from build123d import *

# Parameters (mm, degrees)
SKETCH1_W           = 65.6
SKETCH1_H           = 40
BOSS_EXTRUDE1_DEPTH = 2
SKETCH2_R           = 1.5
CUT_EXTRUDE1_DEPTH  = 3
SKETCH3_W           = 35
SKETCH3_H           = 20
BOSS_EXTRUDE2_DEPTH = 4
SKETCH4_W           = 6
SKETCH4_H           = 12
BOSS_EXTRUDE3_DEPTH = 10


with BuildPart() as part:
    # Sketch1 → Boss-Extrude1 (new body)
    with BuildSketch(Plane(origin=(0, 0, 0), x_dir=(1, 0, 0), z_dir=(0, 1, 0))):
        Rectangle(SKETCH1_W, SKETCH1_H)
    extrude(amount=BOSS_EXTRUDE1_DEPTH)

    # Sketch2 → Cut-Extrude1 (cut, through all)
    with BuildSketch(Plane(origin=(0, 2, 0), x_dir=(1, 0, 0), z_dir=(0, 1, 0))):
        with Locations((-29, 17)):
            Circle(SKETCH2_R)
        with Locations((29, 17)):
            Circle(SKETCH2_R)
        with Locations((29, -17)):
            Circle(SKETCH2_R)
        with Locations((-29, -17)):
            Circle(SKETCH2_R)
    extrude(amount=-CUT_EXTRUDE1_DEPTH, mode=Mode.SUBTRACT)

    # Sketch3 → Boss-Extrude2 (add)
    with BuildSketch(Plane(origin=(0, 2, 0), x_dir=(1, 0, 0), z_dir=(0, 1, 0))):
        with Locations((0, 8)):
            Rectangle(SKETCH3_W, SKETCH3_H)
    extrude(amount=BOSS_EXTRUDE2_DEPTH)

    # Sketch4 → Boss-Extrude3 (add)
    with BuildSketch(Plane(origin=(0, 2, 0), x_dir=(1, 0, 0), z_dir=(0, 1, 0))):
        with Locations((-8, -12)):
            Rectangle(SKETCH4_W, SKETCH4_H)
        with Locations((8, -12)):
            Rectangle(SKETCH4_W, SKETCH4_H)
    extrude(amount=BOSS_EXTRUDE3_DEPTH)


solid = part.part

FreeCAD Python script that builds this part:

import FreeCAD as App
import Part
import Sketcher

V = App.Vector
Q = App.Units.Quantity


def add_polygon(sketch, points):
    """Adds a closed chain of lines whose ends are joined by coincident constraints."""
    first, n = sketch.GeometryCount, len(points)
    for a, b in zip(points, points[1:] + points[:1]):
        sketch.addGeometry(Part.LineSegment(App.Vector(*a, 0), App.Vector(*b, 0)), False)
    for i in range(n):
        sketch.addConstraint(Sketcher.Constraint("Coincident", first + i, 2, first + (i + 1) % n, 1))

doc = App.newDocument("Part")
params = doc.addObject("Spreadsheet::Sheet", "Params")
for row, (alias, value) in enumerate([
    ("sketch1_height", "40 mm"),
    ("sketch1_width", "65.6 mm"),
    ("pad1_length", "2 mm"),
    ("sketch2_diameter", "3 mm"),
    ("sketch3_width", "35 mm"),
    ("sketch3_height", "20 mm"),
    ("pad2_length", "4 mm"),
    ("sketch4_width", "6 mm"),
    ("sketch4_height", "12 mm"),
    ("pad3_length", "10 mm"),
], start=1):
    params.set(f"A{row}", alias)
    params.set(f"B{row}", "=" + value)
    params.setAlias(f"B{row}", alias)

body = doc.addObject("PartDesign::Body", "Body")

# Sketch on XZ plane
sketch1 = body.newObject("Sketcher::SketchObject", "Sketch")
sketch1.AttachmentSupport = (doc.getObject("XZ_Plane"), [""])
sketch1.MapMode = "FlatFace"
add_polygon(sketch1, [(-33, -20), (-33, 20), (33, 20), (33, -20)])  # lines 0-3
sketch1.addConstraint([
    Sketcher.Constraint("Vertical", 0),
    Sketcher.Constraint("Horizontal", 1),
    Sketcher.Constraint("Vertical", 2),
    Sketcher.Constraint("Horizontal", 3),
    Sketcher.Constraint("Symmetric", 0, 2, 2, 2, -1, 1),
    Sketcher.Constraint("DistanceY", 0, 1, 0, 2, Q("40 mm")),
    Sketcher.Constraint("DistanceX", 1, 1, 1, 2, Q("65.6 mm")),
])
sketch1.setExpression("Constraints[9]", "Params.sketch1_height")
sketch1.setExpression("Constraints[10]", "Params.sketch1_width")
pad1 = body.newObject("PartDesign::Pad", "Pad")
pad1.Profile = sketch1
pad1.setExpression("Length", "Params.pad1_length")
pad1.Reversed = True

# Sketch on XZ plane
sketch2 = body.newObject("Sketcher::SketchObject", "Sketch001")
sketch2.AttachmentSupport = (doc.getObject("XZ_Plane"), [""])
sketch2.MapMode = "FlatFace"
sketch2.AttachmentOffset = App.Placement(V(0, 0, -2), App.Rotation())
sketch2.addGeometry([
    Part.Circle(V(-29, -17, 0), V(0, 0, 1), 1.5),
    Part.Circle(V(29, -17, 0), V(0, 0, 1), 1.5),
    Part.Circle(V(29, 17, 0), V(0, 0, 1), 1.5),
    Part.Circle(V(-29, 17, 0), V(0, 0, 1), 1.5),
], False)
sketch2.addConstraint([
    Sketcher.Constraint("Equal", 0, 1),
    Sketcher.Constraint("Equal", 1, 2),
    Sketcher.Constraint("Equal", 2, 3),
    Sketcher.Constraint("Symmetric", 0, 3, 2, 3, -1, 1),
    Sketcher.Constraint("Symmetric", 1, 3, 3, 3, -1, 1),
    Sketcher.Constraint("Symmetric", 0, 3, 1, 3, -2),
    Sketcher.Constraint("Diameter", 0, Q("3 mm")),
    Sketcher.Constraint("DistanceX", 0, 3, -1, 1, Q("29 mm")),
    Sketcher.Constraint("DistanceY", 0, 3, -1, 1, Q("17 mm")),
])
sketch2.setExpression("Constraints[6]", "Params.sketch2_diameter")
pocket1 = body.newObject("PartDesign::Pocket", "Pocket")
pocket1.Profile = sketch2
pocket1.Type = "ThroughAll"
pocket1.Reversed = True

# Sketch on XZ plane
sketch3 = body.newObject("Sketcher::SketchObject", "Sketch002")
sketch3.AttachmentSupport = (doc.getObject("XZ_Plane"), [""])
sketch3.MapMode = "FlatFace"
sketch3.AttachmentOffset = App.Placement(V(0, 0, -2), App.Rotation())
add_polygon(sketch3, [(-18, -18), (-18, 2), (18, 2), (18, -18)])  # lines 0-3
sketch3.addConstraint([
    Sketcher.Constraint("Vertical", 0),
    Sketcher.Constraint("Horizontal", 1),
    Sketcher.Constraint("Vertical", 2),
    Sketcher.Constraint("Horizontal", 3),
    Sketcher.Constraint("DistanceX", 1, 1, 1, 2, Q("35 mm")),
    Sketcher.Constraint("DistanceY", 0, 1, 0, 2, Q("20 mm")),
    Sketcher.Constraint("DistanceY", -1, 1, 0, 2, Q("2 mm")),
    Sketcher.Constraint("DistanceX", 0, 2, -1, 1, Q("17.5 mm")),
])
sketch3.setExpression("Constraints[8]", "Params.sketch3_width")
sketch3.setExpression("Constraints[9]", "Params.sketch3_height")
pad2 = body.newObject("PartDesign::Pad", "Pad001")
pad2.Profile = sketch3
pad2.setExpression("Length", "Params.pad2_length")
pad2.Reversed = True

# Sketch on XZ plane
sketch4 = body.newObject("Sketcher::SketchObject", "Sketch003")
sketch4.AttachmentSupport = (doc.getObject("XZ_Plane"), [""])
sketch4.MapMode = "FlatFace"
sketch4.AttachmentOffset = App.Placement(V(0, 0, -2), App.Rotation())
add_polygon(sketch4, [(-11, 6), (-11, 18), (-5, 18), (-5, 6)])  # lines 0-3
add_polygon(sketch4, [(5, 6), (5, 18), (11, 18), (11, 6)])  # lines 4-7
sketch4.addConstraint([
    Sketcher.Constraint("Vertical", 0),
    Sketcher.Constraint("Horizontal", 1),
    Sketcher.Constraint("Vertical", 2),
    Sketcher.Constraint("Horizontal", 3),
    Sketcher.Constraint("Vertical", 4),
    Sketcher.Constraint("Horizontal", 5),
    Sketcher.Constraint("Vertical", 6),
    Sketcher.Constraint("Horizontal", 7),
    Sketcher.Constraint("Symmetric", 1, 2, 4, 2, -2),
    Sketcher.Constraint("Symmetric", 3, 2, 6, 2, -2),
    Sketcher.Constraint("DistanceX", 1, 1, 1, 2, Q("6 mm")),
    Sketcher.Constraint("DistanceY", 0, 1, 0, 2, Q("12 mm")),
    Sketcher.Constraint("DistanceX", 0, 2, -1, 1, Q("11 mm")),
    Sketcher.Constraint("DistanceY", -1, 1, 0, 2, Q("18 mm")),
])
sketch4.setExpression("Constraints[18]", "Params.sketch4_width")
sketch4.setExpression("Constraints[19]", "Params.sketch4_height")
pad3 = body.newObject("PartDesign::Pad", "Pad002")
pad3.Profile = sketch4
pad3.setExpression("Length", "Params.pad3_length")
pad3.Reversed = True

doc.recompute()
